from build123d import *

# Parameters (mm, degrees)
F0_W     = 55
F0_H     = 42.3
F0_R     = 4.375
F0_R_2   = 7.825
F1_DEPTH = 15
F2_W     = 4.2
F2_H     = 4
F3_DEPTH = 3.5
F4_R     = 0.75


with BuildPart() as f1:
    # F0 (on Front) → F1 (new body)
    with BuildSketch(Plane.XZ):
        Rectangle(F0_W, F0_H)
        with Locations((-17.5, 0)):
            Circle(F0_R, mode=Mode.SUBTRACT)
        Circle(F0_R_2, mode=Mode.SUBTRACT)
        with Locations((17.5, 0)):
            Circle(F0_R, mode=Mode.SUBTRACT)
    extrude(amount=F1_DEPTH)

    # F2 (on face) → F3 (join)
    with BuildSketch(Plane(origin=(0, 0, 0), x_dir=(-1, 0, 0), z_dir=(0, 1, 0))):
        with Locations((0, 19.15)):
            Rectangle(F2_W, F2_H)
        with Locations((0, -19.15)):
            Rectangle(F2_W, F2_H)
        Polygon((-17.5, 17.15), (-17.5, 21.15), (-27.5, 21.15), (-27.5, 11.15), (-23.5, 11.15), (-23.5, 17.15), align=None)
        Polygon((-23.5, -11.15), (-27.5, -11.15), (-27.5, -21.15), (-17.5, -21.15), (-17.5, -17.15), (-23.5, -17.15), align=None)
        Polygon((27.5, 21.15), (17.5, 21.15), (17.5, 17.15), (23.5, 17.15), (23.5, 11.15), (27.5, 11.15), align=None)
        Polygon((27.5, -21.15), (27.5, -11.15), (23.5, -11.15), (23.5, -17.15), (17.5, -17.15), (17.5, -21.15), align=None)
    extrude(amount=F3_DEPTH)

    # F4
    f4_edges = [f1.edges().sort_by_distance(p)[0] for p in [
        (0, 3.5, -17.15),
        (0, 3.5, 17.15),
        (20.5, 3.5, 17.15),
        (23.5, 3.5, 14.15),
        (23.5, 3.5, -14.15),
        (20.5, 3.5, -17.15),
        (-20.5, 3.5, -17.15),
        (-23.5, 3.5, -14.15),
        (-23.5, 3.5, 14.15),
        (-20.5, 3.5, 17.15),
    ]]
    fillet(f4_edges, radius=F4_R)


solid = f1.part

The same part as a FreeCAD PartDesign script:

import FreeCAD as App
import Part
import Sketcher

V = App.Vector


def edges_at(feature, points):
    """Names of the edges that pass closest to the given points."""
    edges = feature.Shape.Edges
    near = lambda p: min(range(len(edges)), key=lambda i: edges[i].distToShape(Part.Vertex(*p))[0])
    return sorted({f"Edge{near(p) + 1}" for p in points})


def add_polygon(sketch, points):
    """Adds a closed chain of lines whose ends are joined by coincident constraints."""
    first, n = sketch.GeometryCount, len(points)
    for a, b in zip(points, points[1:] + points[:1]):
        sketch.addGeometry(Part.LineSegment(App.Vector(*a, 0), App.Vector(*b, 0)), False)
    for i in range(n):
        sketch.addConstraint(Sketcher.Constraint("Coincident", first + i, 2, first + (i + 1) % n, 1))

doc = App.newDocument("Part")
params = doc.addObject("Spreadsheet::Sheet", "Params")
for row, (alias, value) in enumerate([
    ("sketch1_diameter", "8.75 mm"),
    ("sketch1_diameter2", "15.65 mm"),
    ("sketch1_width", "55 mm"),
    ("sketch1_height", "42.3 mm"),
    ("pad1_length", "15 mm"),
    ("sketch2_width", "10 mm"),
    ("sketch2_width2", "4 mm"),
    ("sketch2_width3", "4.2 mm"),
    ("pad2_length", "3.5 mm"),
    ("fillet_radius", "0.75 mm"),
], start=1):
    params.set(f"A{row}", alias)
    params.set(f"B{row}", "=" + value)
    params.setAlias(f"B{row}", alias)

body = doc.addObject("PartDesign::Body", "Body")

# Sketch on XZ plane
sketch1 = body.newObject("Sketcher::SketchObject", "Sketch")
sketch1.AttachmentSupport = (doc.getObject("XZ_Plane"), [""])
sketch1.MapMode = "FlatFace"
add_polygon(sketch1, [(-27.5, 21.1), (-27.5, -21.1), (27.5, -21.1), (27.5, 21.1)])  # lines 0-3
sketch1.addGeometry(Part.Circle(V(-17.5, 0, 0), V(0, 0, 1), 4.4), False)  # 4
sketch1.addGeometry(Part.Circle(V(0, 0, 0), V(0, 0, 1), 7.8), False)  # 5
sketch1.addGeometry(Part.Circle(V(17.5, 0, 0), V(0, 0, 1), 4.4), False)  # 6
sketch1.addConstraint([
    Sketcher.Constraint("Vertical", 0),
    Sketcher.Constraint("Horizontal", 1),
    Sketcher.Constraint("Vertical", 2),
    Sketcher.Constraint("Horizontal", 3),
    Sketcher.Constraint("Coincident", 5, 3, -1, 1),
    Sketcher.Constraint("Equal", 4, 6),
    Sketcher.Constraint("Symmetric", 4, 3, 6, 3, -1, 1),
    Sketcher.Constraint("Symmetric", 0, 2, 2, 2, -1, 1),
    Sketcher.Constraint("PointOnObject", 4, 3, -1),
    Sketcher.Constraint("Diameter", 4, 8.75),
    Sketcher.Constraint("Diameter", 5, 15.65),
    Sketcher.Constraint("DistanceX", 1, 1, 1, 2, 55.0),
    Sketcher.Constraint("DistanceY", 0, 2, 0, 1, 42.3),
    Sketcher.Constraint("DistanceX", 4, 3, 6, 3, 35.0),
])
sketch1.setExpression("Constraints[13]", "Params.sketch1_diameter")
sketch1.setExpression("Constraints[14]", "Params.sketch1_diameter2")
sketch1.setExpression("Constraints[15]", "Params.sketch1_width")
sketch1.setExpression("Constraints[16]", "Params.sketch1_height")
pad1 = body.newObject("PartDesign::Pad", "Pad")
pad1.Profile = sketch1
pad1.setExpression("Length", "Params.pad1_length")

# Sketch on XZ plane
sketch2 = body.newObject("Sketcher::SketchObject", "Sketch001")
sketch2.AttachmentSupport = (doc.getObject("XZ_Plane"), [""])
sketch2.MapMode = "FlatFace"
add_polygon(sketch2, [(2.1, 21.1), (2.1, 17.1), (-2.1, 17.1), (-2.1, 21.1)])  # lines 0-3
add_polygon(sketch2, [(2.1, -17.1), (2.1, -21.1), (-2.1, -21.1), (-2.1, -17.1)])  # lines 4-7
add_polygon(sketch2, [(17.5, 17.1), (17.5, 21.1), (27.5, 21.1), (27.5, 11.2), (23.5, 11.2), (23.5, 17.1)])  # lines 8-13
add_polygon(sketch2, [(23.5, -11.2), (27.5, -11.2), (27.5, -21.1), (17.5, -21.1), (17.5, -17.1), (23.5, -17.1)])  # lines 14-19
add_polygon(sketch2, [(-27.5, 21.1), (-17.5, 21.1), (-17.5, 17.1), (-23.5, 17.1), (-23.5, 11.2), (-27.5, 11.2)])  # lines 20-25
add_polygon(sketch2, [(-27.5, -21.1), (-27.5, -11.2), (-23.5, -11.2), (-23.5, -17.1), (-17.5, -17.1), (-17.5, -21.1)])  # lines 26-31
sketch2.addConstraint([
    Sketcher.Constraint("Vertical", 0),
    Sketcher.Constraint("Horizontal", 1),
    Sketcher.Constraint("Vertical", 2),
    Sketcher.Constraint("Horizontal", 3),
    Sketcher.Constraint("Vertical", 4),
    Sketcher.Constraint("Horizontal", 5),
    Sketcher.Constraint("Vertical", 6),
    Sketcher.Constraint("Horizontal", 7),
    Sketcher.Constraint("Vertical", 8),
    Sketcher.Constraint("Horizontal", 9),
    Sketcher.Constraint("Vertical", 10),
    Sketcher.Constraint("Horizontal", 11),
    Sketcher.Constraint("Vertical", 12),
    Sketcher.Constraint("Horizontal", 13),
    Sketcher.Constraint("Horizontal", 14),
    Sketcher.Constraint("Vertical", 15),
    Sketcher.Constraint("Horizontal", 16),
    Sketcher.Constraint("Vertical", 17),
    Sketcher.Constraint("Horizontal", 18),
    Sketcher.Constraint("Vertical", 19),
    Sketcher.Constraint("Horizontal", 20),
    Sketcher.Constraint("Vertical", 21),
    Sketcher.Constraint("Horizontal", 22),
    Sketcher.Constraint("Vertical", 23),
    Sketcher.Constraint("Horizontal", 24),
    Sketcher.Constraint("Vertical", 25),
    Sketcher.Constraint("Vertical", 26),
    Sketcher.Constraint("Horizontal", 27),
    Sketcher.Constraint("Vertical", 28),
    Sketcher.Constraint("Horizontal", 29),
    Sketcher.Constraint("Vertical", 30),
    Sketcher.Constraint("Horizontal", 31),
    Sketcher.Constraint("Symmetric", 2, 2, 4, 2, -1, 1),
    Sketcher.Constraint("Symmetric", 0, 2, 6, 2, -1, 1),
    Sketcher.Constraint("Symmetric", 16, 2, 20, 2, -1, 1),
    Sketcher.Constraint("Symmetric", 18, 2, 22, 2, -1, 1),
    Sketcher.Constraint("Symmetric", 14, 2, 24, 2, -1, 1),
    Sketcher.Constraint("Symmetric", 10, 2, 26, 2, -1, 1),
    Sketcher.Constraint("Symmetric", 12, 2, 28, 2, -1, 1),
    Sketcher.Constraint("Symmetric", 8, 2, 30, 2, -1, 1),
    Sketcher.Constraint("Symmetric", 8, 2, 20, 2, -2),
    Sketcher.Constraint("Symmetric", 12, 2, 22, 2, -2),
    Sketcher.Constraint("Symmetric", 10, 2, 24, 2, -2),
    Sketcher.Constraint("Horizontal", 3, 2, 8, 2),
    Sketcher.Constraint("Horizontal", 1, 2, 12, 2),
    Sketcher.Constraint("Vertical", 3, 2, 4, 2),
    Sketcher.Constraint("Equal", 27, 0),
    Sketcher.Constraint("Equal", 31, 10),
    Sketcher.Constraint("DistanceX", 9, 1, 9, 2, 10.0),
    Sketcher.Constraint("DistanceX", 11, 2, 11, 1, 4.0),
    Sketcher.Constraint("DistanceX", 1, 2, 1, 1, 4.2),
    Sketcher.Constraint("DistanceX", 20, 2, 8, 2, 35.0),
    Sketcher.Constraint("DistanceY", 4, 2, 0, 2, 38.3),
])
sketch2.setExpression("Constraints[80]", "Params.sketch2_width")
sketch2.setExpression("Constraints[81]", "Params.sketch2_width2")
sketch2.setExpression("Constraints[82]", "Params.sketch2_width3")
pad2 = body.newObject("PartDesign::Pad", "Pad001")
pad2.Profile = sketch2
pad2.setExpression("Length", "Params.pad2_length")
pad2.Reversed = True
doc.recompute()

fillet = body.newObject("PartDesign::Fillet", "Fillet")
fillet.Base = (pad2, edges_at(pad2, [
    (0, 3.5, -17.15),
    (0, 3.5, 17.15),
    (20.5, 3.5, 17.15),
    (23.5, 3.5, 14.15),
    (23.5, 3.5, -14.15),
    (20.5, 3.5, -17.15),
    (-20.5, 3.5, -17.15),
    (-23.5, 3.5, -14.15),
    (-23.5, 3.5, 14.15),
    (-20.5, 3.5, 17.15),
]))
fillet.setExpression("Radius", "Params.fillet_radius")

doc.recompute()
